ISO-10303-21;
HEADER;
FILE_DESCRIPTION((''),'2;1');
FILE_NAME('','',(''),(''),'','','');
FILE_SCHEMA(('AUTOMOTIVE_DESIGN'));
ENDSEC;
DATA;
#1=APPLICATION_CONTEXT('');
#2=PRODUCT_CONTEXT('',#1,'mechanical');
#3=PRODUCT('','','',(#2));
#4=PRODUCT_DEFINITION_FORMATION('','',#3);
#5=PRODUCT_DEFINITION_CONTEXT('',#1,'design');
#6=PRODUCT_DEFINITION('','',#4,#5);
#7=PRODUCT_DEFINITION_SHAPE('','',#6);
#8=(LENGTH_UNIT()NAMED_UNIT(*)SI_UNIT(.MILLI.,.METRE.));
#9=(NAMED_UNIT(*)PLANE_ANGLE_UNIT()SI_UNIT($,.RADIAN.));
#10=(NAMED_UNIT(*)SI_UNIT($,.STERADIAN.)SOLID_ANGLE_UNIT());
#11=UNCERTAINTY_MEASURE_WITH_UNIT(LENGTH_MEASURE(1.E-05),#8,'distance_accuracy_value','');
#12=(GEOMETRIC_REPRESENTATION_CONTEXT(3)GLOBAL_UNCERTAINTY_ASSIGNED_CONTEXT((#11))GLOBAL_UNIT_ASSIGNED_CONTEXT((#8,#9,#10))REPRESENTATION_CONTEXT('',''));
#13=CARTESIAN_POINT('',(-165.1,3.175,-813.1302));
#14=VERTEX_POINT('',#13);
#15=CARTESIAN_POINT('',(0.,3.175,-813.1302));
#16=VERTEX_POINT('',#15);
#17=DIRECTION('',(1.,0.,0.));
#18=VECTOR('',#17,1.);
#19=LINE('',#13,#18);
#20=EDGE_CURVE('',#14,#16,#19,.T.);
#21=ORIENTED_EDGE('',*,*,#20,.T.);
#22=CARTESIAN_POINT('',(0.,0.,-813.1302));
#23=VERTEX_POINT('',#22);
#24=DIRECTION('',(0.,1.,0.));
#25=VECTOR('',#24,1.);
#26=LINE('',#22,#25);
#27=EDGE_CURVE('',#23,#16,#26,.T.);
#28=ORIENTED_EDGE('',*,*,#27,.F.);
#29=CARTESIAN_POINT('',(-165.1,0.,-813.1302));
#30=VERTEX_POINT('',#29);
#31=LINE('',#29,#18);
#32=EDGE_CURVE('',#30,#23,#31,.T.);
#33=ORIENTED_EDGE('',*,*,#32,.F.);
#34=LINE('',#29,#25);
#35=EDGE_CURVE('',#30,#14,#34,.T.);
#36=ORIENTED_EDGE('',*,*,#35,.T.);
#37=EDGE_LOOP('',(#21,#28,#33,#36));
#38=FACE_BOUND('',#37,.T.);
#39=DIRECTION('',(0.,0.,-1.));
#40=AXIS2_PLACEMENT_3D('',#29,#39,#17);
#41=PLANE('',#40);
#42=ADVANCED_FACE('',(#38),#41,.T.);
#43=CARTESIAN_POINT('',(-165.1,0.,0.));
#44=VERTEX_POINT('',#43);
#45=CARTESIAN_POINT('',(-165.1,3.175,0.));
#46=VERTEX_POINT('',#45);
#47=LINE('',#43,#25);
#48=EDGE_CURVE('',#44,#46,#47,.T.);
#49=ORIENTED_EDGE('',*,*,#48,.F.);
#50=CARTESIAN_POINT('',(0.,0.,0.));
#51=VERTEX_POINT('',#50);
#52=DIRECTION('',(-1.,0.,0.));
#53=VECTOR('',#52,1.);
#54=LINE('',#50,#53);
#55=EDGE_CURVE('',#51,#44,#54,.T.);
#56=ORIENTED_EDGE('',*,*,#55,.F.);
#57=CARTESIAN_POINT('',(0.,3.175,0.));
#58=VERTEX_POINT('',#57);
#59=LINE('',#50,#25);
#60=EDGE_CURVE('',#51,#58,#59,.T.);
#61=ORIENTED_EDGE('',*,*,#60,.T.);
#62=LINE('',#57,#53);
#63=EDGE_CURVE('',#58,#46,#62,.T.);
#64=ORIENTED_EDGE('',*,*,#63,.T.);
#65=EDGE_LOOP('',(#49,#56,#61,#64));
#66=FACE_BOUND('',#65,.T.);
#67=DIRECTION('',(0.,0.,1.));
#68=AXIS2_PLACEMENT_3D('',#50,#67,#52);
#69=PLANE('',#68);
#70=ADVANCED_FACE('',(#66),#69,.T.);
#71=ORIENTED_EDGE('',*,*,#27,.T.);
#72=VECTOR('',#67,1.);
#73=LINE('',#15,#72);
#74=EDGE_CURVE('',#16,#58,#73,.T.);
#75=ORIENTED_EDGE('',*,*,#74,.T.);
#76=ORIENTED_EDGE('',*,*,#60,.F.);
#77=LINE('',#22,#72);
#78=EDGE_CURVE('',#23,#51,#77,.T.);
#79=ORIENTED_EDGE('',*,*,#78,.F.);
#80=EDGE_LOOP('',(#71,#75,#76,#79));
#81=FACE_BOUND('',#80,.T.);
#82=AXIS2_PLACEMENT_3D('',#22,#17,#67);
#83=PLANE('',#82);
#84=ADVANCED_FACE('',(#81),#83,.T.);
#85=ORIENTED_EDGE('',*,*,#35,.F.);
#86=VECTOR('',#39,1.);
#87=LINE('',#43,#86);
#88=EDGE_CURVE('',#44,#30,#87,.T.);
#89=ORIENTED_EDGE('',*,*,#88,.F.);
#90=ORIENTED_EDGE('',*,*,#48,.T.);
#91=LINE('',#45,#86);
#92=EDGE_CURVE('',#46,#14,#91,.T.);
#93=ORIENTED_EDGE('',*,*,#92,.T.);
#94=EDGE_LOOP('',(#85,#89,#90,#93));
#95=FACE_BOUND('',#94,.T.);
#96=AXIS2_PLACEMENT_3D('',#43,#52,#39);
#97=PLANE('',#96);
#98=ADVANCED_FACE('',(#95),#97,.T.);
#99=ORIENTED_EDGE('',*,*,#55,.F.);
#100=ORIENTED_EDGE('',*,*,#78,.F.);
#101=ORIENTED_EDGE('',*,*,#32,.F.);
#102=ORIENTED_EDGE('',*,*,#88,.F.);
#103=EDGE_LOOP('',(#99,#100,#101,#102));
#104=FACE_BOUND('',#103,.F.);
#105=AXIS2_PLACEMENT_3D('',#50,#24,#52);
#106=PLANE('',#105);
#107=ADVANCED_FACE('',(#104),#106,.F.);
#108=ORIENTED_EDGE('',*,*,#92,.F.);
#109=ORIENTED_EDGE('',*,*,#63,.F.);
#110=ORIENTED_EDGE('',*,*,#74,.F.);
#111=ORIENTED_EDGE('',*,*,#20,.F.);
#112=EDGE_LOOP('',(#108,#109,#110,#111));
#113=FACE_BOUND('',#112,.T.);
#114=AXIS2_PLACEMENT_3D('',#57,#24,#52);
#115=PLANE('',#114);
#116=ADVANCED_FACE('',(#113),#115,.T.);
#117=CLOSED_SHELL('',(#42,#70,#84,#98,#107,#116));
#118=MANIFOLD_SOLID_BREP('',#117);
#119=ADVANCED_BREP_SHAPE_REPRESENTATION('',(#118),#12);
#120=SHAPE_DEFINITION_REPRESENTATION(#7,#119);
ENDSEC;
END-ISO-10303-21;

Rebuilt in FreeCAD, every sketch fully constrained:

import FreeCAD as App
import Part
import Sketcher

V = App.Vector
Q = App.Units.Quantity

doc = App.newDocument("Part")
body = doc.addObject("PartDesign::Body", "Body")

sketch1 = body.newObject("Sketcher::SketchObject", "Sketch")
sketch1.AttachmentSupport = (doc.getObject("XZ_Plane"), [""])
sketch1.MapMode = "FlatFace"
sketch1.addGeometry([
    Part.LineSegment(V(-165, 0, 0), V(0, 0, 0)),
    Part.LineSegment(V(0, 0, 0), V(0, -813, 0)),
    Part.LineSegment(V(0, -813, 0), V(-165, -813, 0)),
    Part.LineSegment(V(-165, -813, 0), V(-165, 0, 0)),
], False)
sketch1.addConstraint([
    Sketcher.Constraint("Coincident", 0, 2, 1, 1),
    Sketcher.Constraint("Coincident", 1, 2, 2, 1),
    Sketcher.Constraint("Coincident", 2, 2, 3, 1),
    Sketcher.Constraint("Coincident", 3, 2, 0, 1),
    Sketcher.Constraint("Horizontal", 0),
    Sketcher.Constraint("Vertical", 1),
    Sketcher.Constraint("Horizontal", 2),
    Sketcher.Constraint("Vertical", 3),
    Sketcher.Constraint("Coincident", 0, 2, -1, 1),
    Sketcher.Constraint("DistanceX", 0, 1, 0, 2, Q("6.5 in")),
    Sketcher.Constraint("DistanceY", 1, 2, 1, 1, Q("32.013 in")),
])
pad1 = body.newObject("PartDesign::Pad", "Pad")
pad1.Profile = sketch1
pad1.Length = Q("0.125 in")
pad1.Reversed = True

doc.recompute()
